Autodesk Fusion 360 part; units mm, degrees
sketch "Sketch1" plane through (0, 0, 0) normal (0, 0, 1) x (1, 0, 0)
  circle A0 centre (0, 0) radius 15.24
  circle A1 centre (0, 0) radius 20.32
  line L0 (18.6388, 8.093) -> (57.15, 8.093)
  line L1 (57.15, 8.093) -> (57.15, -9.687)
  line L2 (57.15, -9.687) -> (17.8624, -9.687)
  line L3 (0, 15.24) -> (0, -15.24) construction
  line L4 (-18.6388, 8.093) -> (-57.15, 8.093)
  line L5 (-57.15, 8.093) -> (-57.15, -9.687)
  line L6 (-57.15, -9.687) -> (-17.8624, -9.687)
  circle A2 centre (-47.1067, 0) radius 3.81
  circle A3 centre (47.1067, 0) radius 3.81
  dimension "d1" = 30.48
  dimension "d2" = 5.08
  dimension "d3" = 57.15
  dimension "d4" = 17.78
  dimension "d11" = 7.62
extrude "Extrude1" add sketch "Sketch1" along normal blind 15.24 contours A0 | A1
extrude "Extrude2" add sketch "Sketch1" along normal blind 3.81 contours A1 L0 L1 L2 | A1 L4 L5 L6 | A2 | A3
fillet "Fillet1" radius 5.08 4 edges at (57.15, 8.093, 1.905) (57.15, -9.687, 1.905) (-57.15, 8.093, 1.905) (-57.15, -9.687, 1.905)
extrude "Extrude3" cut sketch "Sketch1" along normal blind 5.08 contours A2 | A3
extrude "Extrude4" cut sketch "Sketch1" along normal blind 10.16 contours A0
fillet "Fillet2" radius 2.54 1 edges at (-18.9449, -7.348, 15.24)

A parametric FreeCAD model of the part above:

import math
import FreeCAD as App
import Part
import Sketcher

V = App.Vector
Q = App.Units.Quantity


def edges_at(feature, points):
    """Names of the edges that pass closest to the given points."""
    edges = feature.Shape.Edges
    near = lambda p: min(range(len(edges)), key=lambda i: edges[i].distToShape(Part.Vertex(*p))[0])
    return sorted({f"Edge{near(p) + 1}" for p in points})

doc = App.newDocument("Part")
params = doc.addObject("Spreadsheet::Sheet", "Params")
for row, (alias, value) in enumerate([
    ("sketch1_diameter", "1.6 in"),
    ("pad1_length", "0.6 in"),
    ("sketch2_height", "0.7 in"),
    ("sketch2_radius", "0.8 in"),
    ("pad2_length", "0.15 in"),
    ("fillet_radius", "0.2 in"),
    ("sketch3_diameter", "0.3 in"),
    ("pocket1_length", "0.2 in"),
    ("sketch4_diameter", "1.2 in"),
    ("pocket2_length", "0.4 in"),
    ("fillet2_radius", "0.1 in"),
], start=1):
    params.set(f"A{row}", alias)
    params.set(f"B{row}", "=" + value)
    params.setAlias(f"B{row}", alias)

body = doc.addObject("PartDesign::Body", "Body")

# Sketch on XY plane
sketch1 = body.newObject("Sketcher::SketchObject", "Sketch")
sketch1.AttachmentSupport = (doc.getObject("XY_Plane"), [""])
sketch1.MapMode = "FlatFace"
sketch1.addGeometry(Part.Circle(V(0, 0, 0), V(0, 0, 1), 20), False)
sketch1.addConstraint(Sketcher.Constraint("Coincident", 0, 3, -1, 1))
sketch1.addConstraint(Sketcher.Constraint("Diameter", 0, Q("1.6 in")))
sketch1.setExpression("Constraints[1]", "Params.sketch1_diameter")
pad1 = body.newObject("PartDesign::Pad", "Pad")
pad1.Profile = sketch1
pad1.setExpression("Length", "Params.pad1_length")

# Sketch on XY plane
sketch2 = body.newObject("Sketcher::SketchObject", "Sketch001")
sketch2.AttachmentSupport = (doc.getObject("XY_Plane"), [""])
sketch2.MapMode = "FlatFace"
sketch2.addGeometry(Part.ArcOfCircle(Part.Circle(V(0, 0, 0), V(0, 0, 1), 20), math.radians(-28), math.radians(23)), False)
sketch2.addGeometry(Part.LineSegment(V(18, -10, 0), V(57, -10, 0)), False)
sketch2.addGeometry(Part.LineSegment(V(57, -10, 0), V(57, 8, 0)), False)
sketch2.addGeometry(Part.LineSegment(V(57, 8, 0), V(19, 8, 0)), False)
sketch2.addGeometry(Part.ArcOfCircle(Part.Circle(V(0, 0, 0), V(0, 0, 1), 20), math.radians(157), math.radians(208)), False)
sketch2.addGeometry(Part.LineSegment(V(-19, 8, 0), V(-57, 8, 0)), False)
sketch2.addGeometry(Part.LineSegment(V(-57, 8, 0), V(-57, -10, 0)), False)
sketch2.addGeometry(Part.LineSegment(V(-57, -10, 0), V(-18, -10, 0)), False)
sketch2.addConstraint(Sketcher.Constraint("Coincident", 0, 1, 1, 1))
sketch2.addConstraint(Sketcher.Constraint("Coincident", 1, 2, 2, 1))
sketch2.addConstraint(Sketcher.Constraint("Coincident", 2, 2, 3, 1))
sketch2.addConstraint(Sketcher.Constraint("Coincident", 3, 2, 0, 2))
sketch2.addConstraint(Sketcher.Constraint("Coincident", 4, 1, 5, 1))
sketch2.addConstraint(Sketcher.Constraint("Coincident", 5, 2, 6, 1))
sketch2.addConstraint(Sketcher.Constraint("Coincident", 6, 2, 7, 1))
sketch2.addConstraint(Sketcher.Constraint("Coincident", 7, 2, 4, 2))
sketch2.addConstraint(Sketcher.Constraint("Horizontal", 1))
sketch2.addConstraint(Sketcher.Constraint("Vertical", 2))
sketch2.addConstraint(Sketcher.Constraint("Horizontal", 3))
sketch2.addConstraint(Sketcher.Constraint("Horizontal", 5))
sketch2.addConstraint(Sketcher.Constraint("Vertical", 6))
sketch2.addConstraint(Sketcher.Constraint("Horizontal", 7))
sketch2.addConstraint(Sketcher.Constraint("Coincident", 0, 3, -1, 1))
sketch2.addConstraint(Sketcher.Constraint("Coincident", 4, 3, -1, 1))
sketch2.addConstraint(Sketcher.Constraint("Equal", 0, 4))
sketch2.addConstraint(Sketcher.Constraint("Symmetric", 2, 2, 5, 2, -2))
sketch2.addConstraint(Sketcher.Constraint("Horizontal", 1, 2, 6, 2))
sketch2.addConstraint(Sketcher.Constraint("DistanceY", 2, 1, 2, 2, Q("0.7 in")))
sketch2.addConstraint(Sketcher.Constraint("Radius", 0, Q("0.8 in")))
sketch2.addConstraint(Sketcher.Constraint("DistanceX", -1, 1, 1, 2, Q("2.25 in")))
sketch2.addConstraint(Sketcher.Constraint("DistanceX", 3, 2, 3, 1, Q("1.5162 in")))
sketch2.setExpression("Constraints[19]", "Params.sketch2_height")
sketch2.setExpression("Constraints[20]", "Params.sketch2_radius")
pad2 = body.newObject("PartDesign::Pad", "Pad001")
pad2.Profile = sketch2
pad2.setExpression("Length", "Params.pad2_length")
doc.recompute()

fillet = body.newObject("PartDesign::Fillet", "Fillet")
fillet.Base = (pad2, edges_at(pad2, [
    (57.15, 8.093, 1.905),
    (57.15, -9.687, 1.905),
    (-57.15, 8.093, 1.905),
    (-57.15, -9.687, 1.905),
]))
fillet.setExpression("Radius", "Params.fillet_radius")

# Sketch on XY plane
sketch3 = body.newObject("Sketcher::SketchObject", "Sketch002")
sketch3.AttachmentSupport = (doc.getObject("XY_Plane"), [""])
sketch3.MapMode = "FlatFace"
sketch3.addGeometry(Part.Circle(V(-47.1, 0, 0), V(0, 0, 1), 3.8), False)
sketch3.addGeometry(Part.Circle(V(47.1, 0, 0), V(0, 0, 1), 3.8), False)
sketch3.addConstraint(Sketcher.Constraint("Equal", 0, 1))
sketch3.addConstraint(Sketcher.Constraint("Symmetric", 0, 3, 1, 3, -1, 1))
sketch3.addConstraint(Sketcher.Constraint("PointOnObject", 0, 3, -1))
sketch3.addConstraint(Sketcher.Constraint("Diameter", 0, Q("0.3 in")))
sketch3.addConstraint(Sketcher.Constraint("DistanceX", 0, 3, -1, 1, Q("1.8546 in")))
sketch3.setExpression("Constraints[3]", "Params.sketch3_diameter")
pocket1 = body.newObject("PartDesign::Pocket", "Pocket")
pocket1.Profile = sketch3
pocket1.setExpression("Length", "Params.pocket1_length")
pocket1.Reversed = True

# Sketch on XY plane
sketch4 = body.newObject("Sketcher::SketchObject", "Sketch003")
sketch4.AttachmentSupport = (doc.getObject("XY_Plane"), [""])
sketch4.MapMode = "FlatFace"
sketch4.addGeometry(Part.Circle(V(0, 0, 0), V(0, 0, 1), 15), False)
sketch4.addConstraint(Sketcher.Constraint("Coincident", 0, 3, -1, 1))
sketch4.addConstraint(Sketcher.Constraint("Diameter", 0, Q("1.2 in")))
sketch4.setExpression("Constraints[1]", "Params.sketch4_diameter")
pocket2 = body.newObject("PartDesign::Pocket", "Pocket001")
pocket2.Profile = sketch4
pocket2.setExpression("Length", "Params.pocket2_length")
pocket2.Reversed = True
doc.recompute()

fillet2 = body.newObject("PartDesign::Fillet", "Fillet001")
fillet2.Base = (pocket2, edges_at(pocket2, [(-18.945, -7.348, 15.24)]))
fillet2.setExpression("Radius", "Params.fillet2_radius")

doc.recompute()
